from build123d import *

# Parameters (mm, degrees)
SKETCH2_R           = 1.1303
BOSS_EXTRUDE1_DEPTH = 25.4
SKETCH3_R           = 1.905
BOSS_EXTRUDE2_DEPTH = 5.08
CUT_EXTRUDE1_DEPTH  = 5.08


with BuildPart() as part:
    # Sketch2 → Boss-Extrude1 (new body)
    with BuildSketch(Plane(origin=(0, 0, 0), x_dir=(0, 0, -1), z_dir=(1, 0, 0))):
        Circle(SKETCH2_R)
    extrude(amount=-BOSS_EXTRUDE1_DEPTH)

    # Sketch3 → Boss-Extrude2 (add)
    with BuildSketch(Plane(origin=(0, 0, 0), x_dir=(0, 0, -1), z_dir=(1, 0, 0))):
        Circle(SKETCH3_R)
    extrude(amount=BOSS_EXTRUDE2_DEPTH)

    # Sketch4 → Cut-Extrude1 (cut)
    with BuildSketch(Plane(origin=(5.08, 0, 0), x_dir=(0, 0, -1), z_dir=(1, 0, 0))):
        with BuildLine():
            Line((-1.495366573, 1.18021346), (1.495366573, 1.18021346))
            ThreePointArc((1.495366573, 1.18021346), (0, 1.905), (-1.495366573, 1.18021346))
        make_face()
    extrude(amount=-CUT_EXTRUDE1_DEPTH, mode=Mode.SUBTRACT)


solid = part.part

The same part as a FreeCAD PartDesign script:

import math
import FreeCAD as App
import Part
import Sketcher
Q = App.Units.Quantity

doc = App.newDocument("Part")
body = doc.addObject("PartDesign::Body", "Body")

# Sketch on YZ plane
sketch1 = body.newObject("Sketcher::SketchObject", "Sketch")
sketch1.AttachmentSupport = (doc.getObject("YZ_Plane"), [""])
sketch1.MapMode = "FlatFace"
sketch1.addGeometry(Part.Circle(App.Vector(0, 0, 0), App.Vector(0, 0, 1), 1.1), False)
sketch1.addConstraint(Sketcher.Constraint("Coincident", 0, 3, -1, 1))
sketch1.addConstraint(Sketcher.Constraint("Diameter", 0, Q("0.089 in")))
pad1 = body.newObject("PartDesign::Pad", "Pad")
pad1.Profile = sketch1
pad1.Length = Q("1 in")
pad1.Reversed = True

# Sketch on YZ plane
sketch2 = body.newObject("Sketcher::SketchObject", "Sketch001")
sketch2.AttachmentSupport = (doc.getObject("YZ_Plane"), [""])
sketch2.MapMode = "FlatFace"
sketch2.addGeometry(Part.Circle(App.Vector(0, 0, 0), App.Vector(0, 0, 1), 1.9), False)
sketch2.addConstraint(Sketcher.Constraint("Coincident", 0, 3, -1, 1))
sketch2.addConstraint(Sketcher.Constraint("Diameter", 0, Q("0.15 in")))
pad2 = body.newObject("PartDesign::Pad", "Pad001")
pad2.Profile = sketch2
pad2.Length = Q("0.2 in")

# Sketch on YZ plane
sketch3 = body.newObject("Sketcher::SketchObject", "Sketch002")
sketch3.AttachmentSupport = (doc.getObject("YZ_Plane"), [""])
sketch3.MapMode = "FlatFace"
sketch3.AttachmentOffset = App.Placement(App.Vector(0, 0, 0.2 * 25.4), App.Rotation())
sketch3.addGeometry(Part.LineSegment(App.Vector(1.2, 1.5, 0), App.Vector(1.2, -1.5, 0)), False)
sketch3.addGeometry(Part.ArcOfCircle(Part.Circle(App.Vector(0, 0, 0), App.Vector(0, 0, 1), 1.9), math.radians(-52), math.radians(52)), False)
sketch3.addConstraint(Sketcher.Constraint("Coincident", 0, 1, 1, 2))
sketch3.addConstraint(Sketcher.Constraint("Coincident", 1, 1, 0, 2))
sketch3.addConstraint(Sketcher.Constraint("Vertical", 0))
sketch3.addConstraint(Sketcher.Constraint("Coincident", 1, 3, -1, 1))
sketch3.addConstraint(Sketcher.Constraint("Radius", 1, Q("0.075 in")))
sketch3.addConstraint(Sketcher.Constraint("DistanceY", 0, 2, 0, 1, 2.990733))
pocket1 = body.newObject("PartDesign::Pocket", "Pocket")
pocket1.Profile = sketch3
pocket1.Length = Q("0.2 in")

doc.recompute()
